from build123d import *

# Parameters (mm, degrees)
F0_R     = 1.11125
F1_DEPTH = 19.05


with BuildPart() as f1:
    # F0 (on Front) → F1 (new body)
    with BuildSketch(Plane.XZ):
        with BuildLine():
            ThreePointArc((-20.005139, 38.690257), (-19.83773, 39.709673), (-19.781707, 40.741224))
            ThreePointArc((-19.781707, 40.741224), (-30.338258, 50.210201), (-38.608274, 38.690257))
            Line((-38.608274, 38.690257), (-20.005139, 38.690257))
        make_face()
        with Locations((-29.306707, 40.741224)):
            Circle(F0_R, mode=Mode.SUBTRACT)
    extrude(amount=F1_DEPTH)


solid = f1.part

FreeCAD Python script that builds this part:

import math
import FreeCAD as App
import Part
import Sketcher

V = App.Vector
Q = App.Units.Quantity

doc = App.newDocument("Part")
body = doc.addObject("PartDesign::Body", "Body")

# Sketch on XZ plane
sketch1 = body.newObject("Sketcher::SketchObject", "Sketch")
sketch1.AttachmentSupport = (doc.getObject("XZ_Plane"), [""])
sketch1.MapMode = "FlatFace"
sketch1.addGeometry(Part.ArcOfCircle(Part.Circle(V(-29.3, 40.7, 0), V(0, 0, 1), 9.5), math.radians(-12.43), math.radians(0)), False)
sketch1.addGeometry(Part.ArcOfCircle(Part.Circle(V(-29.3, 40.7, 0), V(0, 0, 1), 9.5), math.radians(0), math.radians(192)), False)
sketch1.addGeometry(Part.LineSegment(V(-38.6, 38.7, 0), V(-20, 38.7, 0)), False)
sketch1.addGeometry(Part.Circle(V(-29.3, 40.7, 0), V(0, 0, 1), 1.1), False)
sketch1.addConstraint(Sketcher.Constraint("Tangent", 0, 2, 1, 1))
sketch1.addConstraint(Sketcher.Constraint("Coincident", 1, 2, 2, 1))
sketch1.addConstraint(Sketcher.Constraint("Coincident", 2, 2, 0, 1))
sketch1.addConstraint(Sketcher.Constraint("Horizontal", 2))
sketch1.addConstraint(Sketcher.Constraint("Coincident", 3, 3, 1, 3))
sketch1.addConstraint(Sketcher.Constraint("Horizontal", 3, 3, 0, 2))
sketch1.addConstraint(Sketcher.Constraint("Radius", 1, Q("0.375 in")))
sketch1.addConstraint(Sketcher.Constraint("Diameter", 3, Q("0.0875 in")))
sketch1.addConstraint(Sketcher.Constraint("Radius", 0, 9.525054))
sketch1.addConstraint(Sketcher.Constraint("DistanceX", 2, 1, 2, 2, 18.603135))
sketch1.addConstraint(Sketcher.Constraint("DistanceX", 0, 3, -1, 1, 29.306761))
sketch1.addConstraint(Sketcher.Constraint("DistanceY", -1, 1, 0, 3, 40.741228))
pad1 = body.newObject("PartDesign::Pad", "Pad")
pad1.Profile = sketch1
pad1.Length = Q("0.75 in")

doc.recompute()
